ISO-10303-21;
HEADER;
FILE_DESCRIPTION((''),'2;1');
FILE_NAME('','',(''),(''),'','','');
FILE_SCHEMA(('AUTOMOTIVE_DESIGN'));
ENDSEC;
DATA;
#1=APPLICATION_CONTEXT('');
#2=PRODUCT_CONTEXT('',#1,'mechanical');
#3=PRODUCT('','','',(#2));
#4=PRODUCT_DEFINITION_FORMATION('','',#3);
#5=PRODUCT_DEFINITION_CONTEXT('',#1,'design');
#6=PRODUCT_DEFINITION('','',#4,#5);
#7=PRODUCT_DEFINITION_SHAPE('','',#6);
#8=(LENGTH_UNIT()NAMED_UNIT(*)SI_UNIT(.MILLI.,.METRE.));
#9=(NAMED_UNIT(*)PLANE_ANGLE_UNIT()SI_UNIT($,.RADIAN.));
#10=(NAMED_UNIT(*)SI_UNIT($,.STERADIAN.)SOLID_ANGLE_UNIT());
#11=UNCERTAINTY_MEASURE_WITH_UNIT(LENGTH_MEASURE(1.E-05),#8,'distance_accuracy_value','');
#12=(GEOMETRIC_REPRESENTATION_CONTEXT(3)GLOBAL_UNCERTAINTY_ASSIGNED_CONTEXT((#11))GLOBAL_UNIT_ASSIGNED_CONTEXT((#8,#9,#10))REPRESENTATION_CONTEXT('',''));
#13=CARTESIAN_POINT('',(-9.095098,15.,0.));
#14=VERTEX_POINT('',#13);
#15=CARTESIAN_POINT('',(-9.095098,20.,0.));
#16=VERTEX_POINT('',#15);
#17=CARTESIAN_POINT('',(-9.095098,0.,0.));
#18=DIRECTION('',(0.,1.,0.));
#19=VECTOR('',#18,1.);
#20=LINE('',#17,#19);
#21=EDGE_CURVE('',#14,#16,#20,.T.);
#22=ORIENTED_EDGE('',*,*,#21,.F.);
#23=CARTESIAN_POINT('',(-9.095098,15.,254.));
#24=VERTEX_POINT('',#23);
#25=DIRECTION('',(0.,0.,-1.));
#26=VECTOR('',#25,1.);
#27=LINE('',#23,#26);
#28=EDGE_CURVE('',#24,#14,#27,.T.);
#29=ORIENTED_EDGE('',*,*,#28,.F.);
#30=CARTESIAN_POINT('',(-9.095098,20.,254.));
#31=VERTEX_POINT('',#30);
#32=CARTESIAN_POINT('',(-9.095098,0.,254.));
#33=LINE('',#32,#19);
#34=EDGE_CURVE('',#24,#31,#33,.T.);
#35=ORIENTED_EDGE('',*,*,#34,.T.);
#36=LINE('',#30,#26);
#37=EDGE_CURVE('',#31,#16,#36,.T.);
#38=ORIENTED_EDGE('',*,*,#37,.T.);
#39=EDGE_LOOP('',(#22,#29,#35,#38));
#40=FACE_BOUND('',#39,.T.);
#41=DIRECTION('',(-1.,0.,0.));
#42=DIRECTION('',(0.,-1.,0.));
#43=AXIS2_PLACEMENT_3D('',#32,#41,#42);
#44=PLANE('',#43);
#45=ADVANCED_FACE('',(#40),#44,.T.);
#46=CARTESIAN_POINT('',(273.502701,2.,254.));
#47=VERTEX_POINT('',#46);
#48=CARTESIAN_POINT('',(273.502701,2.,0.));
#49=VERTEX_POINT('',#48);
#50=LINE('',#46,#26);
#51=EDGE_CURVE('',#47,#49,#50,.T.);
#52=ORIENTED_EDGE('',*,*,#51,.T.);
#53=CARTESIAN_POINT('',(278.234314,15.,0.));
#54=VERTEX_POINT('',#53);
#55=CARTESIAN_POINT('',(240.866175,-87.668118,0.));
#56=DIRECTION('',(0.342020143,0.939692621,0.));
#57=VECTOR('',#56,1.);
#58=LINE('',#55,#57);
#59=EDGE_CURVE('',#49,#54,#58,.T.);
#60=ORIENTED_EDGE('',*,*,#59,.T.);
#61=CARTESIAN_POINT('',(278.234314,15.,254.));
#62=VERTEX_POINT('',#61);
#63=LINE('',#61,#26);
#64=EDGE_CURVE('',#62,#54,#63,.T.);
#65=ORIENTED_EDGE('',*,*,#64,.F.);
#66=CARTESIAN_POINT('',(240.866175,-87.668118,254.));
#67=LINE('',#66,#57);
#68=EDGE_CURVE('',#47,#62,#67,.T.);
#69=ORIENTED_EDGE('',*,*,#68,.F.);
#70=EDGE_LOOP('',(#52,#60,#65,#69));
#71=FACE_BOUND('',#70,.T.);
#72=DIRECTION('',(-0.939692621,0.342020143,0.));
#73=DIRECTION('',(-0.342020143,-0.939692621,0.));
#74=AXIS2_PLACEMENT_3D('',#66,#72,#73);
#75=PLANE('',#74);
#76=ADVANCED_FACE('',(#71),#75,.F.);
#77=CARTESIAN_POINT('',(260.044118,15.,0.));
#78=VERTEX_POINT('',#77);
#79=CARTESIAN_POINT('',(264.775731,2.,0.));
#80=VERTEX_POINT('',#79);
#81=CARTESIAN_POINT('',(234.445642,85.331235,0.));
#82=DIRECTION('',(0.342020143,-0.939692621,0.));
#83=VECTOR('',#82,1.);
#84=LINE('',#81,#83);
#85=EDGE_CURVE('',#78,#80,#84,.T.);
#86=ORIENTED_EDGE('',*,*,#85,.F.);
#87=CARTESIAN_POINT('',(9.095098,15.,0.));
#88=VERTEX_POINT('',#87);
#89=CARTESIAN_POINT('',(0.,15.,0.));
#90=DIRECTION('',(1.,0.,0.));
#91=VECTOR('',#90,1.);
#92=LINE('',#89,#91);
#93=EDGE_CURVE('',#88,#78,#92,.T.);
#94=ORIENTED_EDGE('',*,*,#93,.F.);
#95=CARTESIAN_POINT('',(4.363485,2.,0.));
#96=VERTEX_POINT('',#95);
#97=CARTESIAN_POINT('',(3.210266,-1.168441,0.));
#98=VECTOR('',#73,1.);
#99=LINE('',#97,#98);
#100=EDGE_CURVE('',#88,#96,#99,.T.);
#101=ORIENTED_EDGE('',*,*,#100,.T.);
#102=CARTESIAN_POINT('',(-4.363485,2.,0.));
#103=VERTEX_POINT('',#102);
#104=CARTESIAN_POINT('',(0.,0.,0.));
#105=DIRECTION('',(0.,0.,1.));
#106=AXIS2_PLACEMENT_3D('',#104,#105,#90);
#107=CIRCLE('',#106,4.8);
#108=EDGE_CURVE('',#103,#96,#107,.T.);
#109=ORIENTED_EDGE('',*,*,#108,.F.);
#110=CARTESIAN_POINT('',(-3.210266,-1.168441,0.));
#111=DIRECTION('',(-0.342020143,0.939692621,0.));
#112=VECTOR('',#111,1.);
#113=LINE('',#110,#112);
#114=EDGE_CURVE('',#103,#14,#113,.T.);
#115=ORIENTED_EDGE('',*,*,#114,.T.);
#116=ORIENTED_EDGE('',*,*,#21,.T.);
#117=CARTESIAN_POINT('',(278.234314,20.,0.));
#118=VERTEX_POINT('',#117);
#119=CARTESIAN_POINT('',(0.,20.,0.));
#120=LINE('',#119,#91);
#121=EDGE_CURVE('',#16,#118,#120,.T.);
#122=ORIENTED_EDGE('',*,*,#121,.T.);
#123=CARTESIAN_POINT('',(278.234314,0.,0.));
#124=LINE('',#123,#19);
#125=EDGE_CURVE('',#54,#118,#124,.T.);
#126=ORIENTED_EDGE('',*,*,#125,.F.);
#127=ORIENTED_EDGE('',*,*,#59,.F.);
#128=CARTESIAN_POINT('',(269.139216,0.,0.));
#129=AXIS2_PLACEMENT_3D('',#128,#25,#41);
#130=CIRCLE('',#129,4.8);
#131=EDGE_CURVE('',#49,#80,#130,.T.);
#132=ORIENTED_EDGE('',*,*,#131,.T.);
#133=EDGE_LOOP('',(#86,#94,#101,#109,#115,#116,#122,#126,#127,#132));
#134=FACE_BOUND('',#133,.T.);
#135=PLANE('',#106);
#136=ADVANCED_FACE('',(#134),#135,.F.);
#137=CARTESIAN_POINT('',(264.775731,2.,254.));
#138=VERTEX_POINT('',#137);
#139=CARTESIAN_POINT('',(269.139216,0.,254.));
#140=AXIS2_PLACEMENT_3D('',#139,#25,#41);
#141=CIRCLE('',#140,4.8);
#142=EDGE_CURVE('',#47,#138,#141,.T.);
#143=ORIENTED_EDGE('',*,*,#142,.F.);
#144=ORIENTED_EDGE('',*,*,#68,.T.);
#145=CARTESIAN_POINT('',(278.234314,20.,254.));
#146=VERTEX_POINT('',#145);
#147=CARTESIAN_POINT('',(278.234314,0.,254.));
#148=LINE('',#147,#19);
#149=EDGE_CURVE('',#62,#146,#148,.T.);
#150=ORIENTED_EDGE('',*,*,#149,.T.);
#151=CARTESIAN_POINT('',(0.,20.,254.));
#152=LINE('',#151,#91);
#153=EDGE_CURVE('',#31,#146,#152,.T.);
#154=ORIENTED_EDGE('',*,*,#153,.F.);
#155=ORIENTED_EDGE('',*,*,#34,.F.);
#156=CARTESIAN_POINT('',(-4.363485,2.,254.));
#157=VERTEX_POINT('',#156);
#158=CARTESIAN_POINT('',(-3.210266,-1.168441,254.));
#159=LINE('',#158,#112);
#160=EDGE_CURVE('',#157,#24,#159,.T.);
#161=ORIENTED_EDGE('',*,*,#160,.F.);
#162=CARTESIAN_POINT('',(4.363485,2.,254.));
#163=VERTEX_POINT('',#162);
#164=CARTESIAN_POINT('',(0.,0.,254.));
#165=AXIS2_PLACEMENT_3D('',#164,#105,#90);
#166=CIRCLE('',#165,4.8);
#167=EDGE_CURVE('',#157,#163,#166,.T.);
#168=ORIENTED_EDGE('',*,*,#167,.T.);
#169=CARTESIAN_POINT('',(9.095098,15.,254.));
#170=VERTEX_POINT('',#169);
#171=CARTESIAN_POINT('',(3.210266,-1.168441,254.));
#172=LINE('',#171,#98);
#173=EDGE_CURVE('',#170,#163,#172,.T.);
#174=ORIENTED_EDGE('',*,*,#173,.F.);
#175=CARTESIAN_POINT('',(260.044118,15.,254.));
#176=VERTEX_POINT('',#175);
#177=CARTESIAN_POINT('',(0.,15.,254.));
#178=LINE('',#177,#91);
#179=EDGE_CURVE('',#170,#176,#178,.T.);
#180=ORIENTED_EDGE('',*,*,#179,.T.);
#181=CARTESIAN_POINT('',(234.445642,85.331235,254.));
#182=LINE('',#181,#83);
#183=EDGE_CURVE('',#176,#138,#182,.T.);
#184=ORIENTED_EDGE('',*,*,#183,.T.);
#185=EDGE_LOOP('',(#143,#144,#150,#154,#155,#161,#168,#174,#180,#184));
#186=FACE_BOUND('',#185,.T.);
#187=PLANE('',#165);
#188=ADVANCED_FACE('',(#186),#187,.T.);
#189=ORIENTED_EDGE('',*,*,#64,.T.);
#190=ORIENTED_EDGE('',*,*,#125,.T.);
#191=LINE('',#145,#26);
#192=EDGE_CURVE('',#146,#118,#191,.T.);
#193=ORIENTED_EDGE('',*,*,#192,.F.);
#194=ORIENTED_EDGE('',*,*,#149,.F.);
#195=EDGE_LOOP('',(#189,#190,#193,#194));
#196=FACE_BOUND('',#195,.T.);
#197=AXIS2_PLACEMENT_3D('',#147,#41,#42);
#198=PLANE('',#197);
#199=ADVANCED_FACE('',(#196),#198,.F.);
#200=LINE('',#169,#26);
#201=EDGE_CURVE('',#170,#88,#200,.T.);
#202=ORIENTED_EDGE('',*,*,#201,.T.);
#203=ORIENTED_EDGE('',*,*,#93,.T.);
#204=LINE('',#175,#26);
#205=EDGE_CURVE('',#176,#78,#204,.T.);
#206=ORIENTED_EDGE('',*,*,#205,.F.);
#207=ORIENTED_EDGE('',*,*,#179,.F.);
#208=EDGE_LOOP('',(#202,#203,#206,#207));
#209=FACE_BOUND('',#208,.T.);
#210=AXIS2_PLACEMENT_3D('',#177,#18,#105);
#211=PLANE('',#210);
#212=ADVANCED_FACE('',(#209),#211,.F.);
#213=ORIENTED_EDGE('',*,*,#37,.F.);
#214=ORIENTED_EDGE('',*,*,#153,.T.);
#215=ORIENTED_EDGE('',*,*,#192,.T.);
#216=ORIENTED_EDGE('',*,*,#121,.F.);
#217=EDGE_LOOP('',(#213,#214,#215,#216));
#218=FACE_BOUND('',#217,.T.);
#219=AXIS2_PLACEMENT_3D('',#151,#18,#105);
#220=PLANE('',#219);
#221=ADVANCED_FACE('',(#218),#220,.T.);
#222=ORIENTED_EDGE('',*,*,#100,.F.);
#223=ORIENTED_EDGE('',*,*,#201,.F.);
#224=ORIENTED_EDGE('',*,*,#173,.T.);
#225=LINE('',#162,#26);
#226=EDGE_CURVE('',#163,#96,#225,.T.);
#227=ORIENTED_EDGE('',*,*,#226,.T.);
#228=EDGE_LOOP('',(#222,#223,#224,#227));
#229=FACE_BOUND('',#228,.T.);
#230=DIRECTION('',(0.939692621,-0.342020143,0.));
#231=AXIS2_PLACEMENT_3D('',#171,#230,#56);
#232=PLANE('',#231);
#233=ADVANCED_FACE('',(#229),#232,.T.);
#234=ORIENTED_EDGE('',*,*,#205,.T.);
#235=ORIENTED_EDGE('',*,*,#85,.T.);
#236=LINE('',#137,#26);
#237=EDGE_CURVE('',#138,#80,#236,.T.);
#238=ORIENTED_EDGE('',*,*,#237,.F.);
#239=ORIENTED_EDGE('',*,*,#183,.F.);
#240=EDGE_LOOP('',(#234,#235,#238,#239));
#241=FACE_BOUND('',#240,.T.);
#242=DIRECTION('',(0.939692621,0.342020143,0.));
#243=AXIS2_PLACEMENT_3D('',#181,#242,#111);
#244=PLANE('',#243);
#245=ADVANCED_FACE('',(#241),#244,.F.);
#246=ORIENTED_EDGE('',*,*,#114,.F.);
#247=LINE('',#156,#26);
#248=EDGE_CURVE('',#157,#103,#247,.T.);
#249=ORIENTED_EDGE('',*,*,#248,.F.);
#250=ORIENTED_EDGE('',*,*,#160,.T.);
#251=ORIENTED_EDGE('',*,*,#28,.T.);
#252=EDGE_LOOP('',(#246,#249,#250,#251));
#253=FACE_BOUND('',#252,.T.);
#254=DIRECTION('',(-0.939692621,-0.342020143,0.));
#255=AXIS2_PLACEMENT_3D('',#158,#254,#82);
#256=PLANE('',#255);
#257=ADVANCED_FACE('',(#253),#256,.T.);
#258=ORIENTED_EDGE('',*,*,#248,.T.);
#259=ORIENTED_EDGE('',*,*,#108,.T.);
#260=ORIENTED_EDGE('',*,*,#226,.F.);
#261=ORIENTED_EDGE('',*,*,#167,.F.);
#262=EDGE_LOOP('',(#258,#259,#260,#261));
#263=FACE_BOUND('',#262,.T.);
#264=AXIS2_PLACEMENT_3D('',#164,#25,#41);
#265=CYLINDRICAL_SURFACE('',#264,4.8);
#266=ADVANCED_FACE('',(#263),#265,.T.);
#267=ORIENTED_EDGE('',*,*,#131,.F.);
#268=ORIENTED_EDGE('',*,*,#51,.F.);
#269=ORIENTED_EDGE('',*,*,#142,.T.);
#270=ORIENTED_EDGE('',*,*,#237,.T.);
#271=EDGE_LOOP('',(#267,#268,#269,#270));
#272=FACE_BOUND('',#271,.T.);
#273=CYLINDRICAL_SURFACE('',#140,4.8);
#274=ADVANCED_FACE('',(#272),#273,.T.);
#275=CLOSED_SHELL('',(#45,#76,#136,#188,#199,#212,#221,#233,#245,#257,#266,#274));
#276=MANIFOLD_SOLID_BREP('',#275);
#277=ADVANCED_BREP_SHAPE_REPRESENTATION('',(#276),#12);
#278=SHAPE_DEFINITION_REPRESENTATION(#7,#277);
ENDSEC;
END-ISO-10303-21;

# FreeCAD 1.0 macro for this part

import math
import FreeCAD as App
import Part
import Sketcher
Q = App.Units.Quantity

doc = App.newDocument("Part")
body = doc.addObject("PartDesign::Body", "Body")

sketch1 = body.newObject("Sketcher::SketchObject", "Sketch")
sketch1.AttachmentSupport = (doc.getObject("XY_Plane"), [""])
sketch1.MapMode = "FlatFace"
sketch1.addGeometry([
    Part.LineSegment(App.Vector(-9.1, 15, 0), App.Vector(-4.4, 2, 0)),
    Part.ArcOfCircle(Part.Circle(App.Vector(0, 0, 0), App.Vector(0, 0, 1), 4.8), math.radians(155), math.radians(385)),
    Part.LineSegment(App.Vector(4.4, 2, 0), App.Vector(9.1, 15, 0)),
    Part.LineSegment(App.Vector(9.1, 15, 0), App.Vector(260, 15, 0)),
    Part.LineSegment(App.Vector(260, 15, 0), App.Vector(264.8, 2, 0)),
    Part.ArcOfCircle(Part.Circle(App.Vector(269.1, 0, 0), App.Vector(0, 0, 1), 4.8), math.radians(155), math.radians(385)),
    Part.LineSegment(App.Vector(273.5, 2, 0), App.Vector(278.2, 15, 0)),
    Part.LineSegment(App.Vector(278.2, 15, 0), App.Vector(278.2, 20, 0)),
    Part.LineSegment(App.Vector(278.2, 20, 0), App.Vector(-9.1, 20, 0)),
    Part.LineSegment(App.Vector(-9.1, 20, 0), App.Vector(-9.1, 15, 0)),
], False)
sketch1.addConstraint([
    Sketcher.Constraint("Coincident", 0, 2, 1, 1),
    Sketcher.Constraint("Coincident", 1, 2, 2, 1),
    Sketcher.Constraint("Coincident", 2, 2, 3, 1),
    Sketcher.Constraint("Coincident", 3, 2, 4, 1),
    Sketcher.Constraint("Coincident", 4, 2, 5, 1),
    Sketcher.Constraint("Coincident", 5, 2, 6, 1),
    Sketcher.Constraint("Coincident", 6, 2, 7, 1),
    Sketcher.Constraint("Coincident", 7, 2, 8, 1),
    Sketcher.Constraint("Coincident", 8, 2, 9, 1),
    Sketcher.Constraint("Coincident", 9, 2, 0, 1),
    Sketcher.Constraint("Horizontal", 3),
    Sketcher.Constraint("Vertical", 7),
    Sketcher.Constraint("Horizontal", 8),
    Sketcher.Constraint("Vertical", 9),
    Sketcher.Constraint("Coincident", 1, 3, -1, 1),
    Sketcher.Constraint("Equal", 1, 5),
    Sketcher.Constraint("Symmetric", 2, 2, 9, 2, -2),
    Sketcher.Constraint("PointOnObject", 5, 3, -1),
    Sketcher.Constraint("Parallel", 0, 4),
    Sketcher.Constraint("Parallel", 2, 6),
    Sketcher.Constraint("Horizontal", 0, 2, 1, 2),
    Sketcher.Constraint("Horizontal", 1, 2, 4, 2),
    Sketcher.Constraint("Horizontal", 4, 2, 5, 2),
    Sketcher.Constraint("Horizontal", 3, 2, 6, 2),
    Sketcher.Constraint("Radius", 1, 4.8),
    Sketcher.Constraint("DistanceY", 7, 1, 7, 2, 5.0),
    Sketcher.Constraint("Angle", 0, Q("-70 deg")),
    Sketcher.Constraint("DistanceY", -1, 1, 0, 2, 2.0),
    Sketcher.Constraint("DistanceY", -1, 1, 2, 2, 15.0),
    Sketcher.Constraint("DistanceX", 3, 1, 3, 2, 250.94902),
])
pad1 = body.newObject("PartDesign::Pad", "Pad")
pad1.Profile = sketch1
pad1.Length = 254

doc.recompute()
